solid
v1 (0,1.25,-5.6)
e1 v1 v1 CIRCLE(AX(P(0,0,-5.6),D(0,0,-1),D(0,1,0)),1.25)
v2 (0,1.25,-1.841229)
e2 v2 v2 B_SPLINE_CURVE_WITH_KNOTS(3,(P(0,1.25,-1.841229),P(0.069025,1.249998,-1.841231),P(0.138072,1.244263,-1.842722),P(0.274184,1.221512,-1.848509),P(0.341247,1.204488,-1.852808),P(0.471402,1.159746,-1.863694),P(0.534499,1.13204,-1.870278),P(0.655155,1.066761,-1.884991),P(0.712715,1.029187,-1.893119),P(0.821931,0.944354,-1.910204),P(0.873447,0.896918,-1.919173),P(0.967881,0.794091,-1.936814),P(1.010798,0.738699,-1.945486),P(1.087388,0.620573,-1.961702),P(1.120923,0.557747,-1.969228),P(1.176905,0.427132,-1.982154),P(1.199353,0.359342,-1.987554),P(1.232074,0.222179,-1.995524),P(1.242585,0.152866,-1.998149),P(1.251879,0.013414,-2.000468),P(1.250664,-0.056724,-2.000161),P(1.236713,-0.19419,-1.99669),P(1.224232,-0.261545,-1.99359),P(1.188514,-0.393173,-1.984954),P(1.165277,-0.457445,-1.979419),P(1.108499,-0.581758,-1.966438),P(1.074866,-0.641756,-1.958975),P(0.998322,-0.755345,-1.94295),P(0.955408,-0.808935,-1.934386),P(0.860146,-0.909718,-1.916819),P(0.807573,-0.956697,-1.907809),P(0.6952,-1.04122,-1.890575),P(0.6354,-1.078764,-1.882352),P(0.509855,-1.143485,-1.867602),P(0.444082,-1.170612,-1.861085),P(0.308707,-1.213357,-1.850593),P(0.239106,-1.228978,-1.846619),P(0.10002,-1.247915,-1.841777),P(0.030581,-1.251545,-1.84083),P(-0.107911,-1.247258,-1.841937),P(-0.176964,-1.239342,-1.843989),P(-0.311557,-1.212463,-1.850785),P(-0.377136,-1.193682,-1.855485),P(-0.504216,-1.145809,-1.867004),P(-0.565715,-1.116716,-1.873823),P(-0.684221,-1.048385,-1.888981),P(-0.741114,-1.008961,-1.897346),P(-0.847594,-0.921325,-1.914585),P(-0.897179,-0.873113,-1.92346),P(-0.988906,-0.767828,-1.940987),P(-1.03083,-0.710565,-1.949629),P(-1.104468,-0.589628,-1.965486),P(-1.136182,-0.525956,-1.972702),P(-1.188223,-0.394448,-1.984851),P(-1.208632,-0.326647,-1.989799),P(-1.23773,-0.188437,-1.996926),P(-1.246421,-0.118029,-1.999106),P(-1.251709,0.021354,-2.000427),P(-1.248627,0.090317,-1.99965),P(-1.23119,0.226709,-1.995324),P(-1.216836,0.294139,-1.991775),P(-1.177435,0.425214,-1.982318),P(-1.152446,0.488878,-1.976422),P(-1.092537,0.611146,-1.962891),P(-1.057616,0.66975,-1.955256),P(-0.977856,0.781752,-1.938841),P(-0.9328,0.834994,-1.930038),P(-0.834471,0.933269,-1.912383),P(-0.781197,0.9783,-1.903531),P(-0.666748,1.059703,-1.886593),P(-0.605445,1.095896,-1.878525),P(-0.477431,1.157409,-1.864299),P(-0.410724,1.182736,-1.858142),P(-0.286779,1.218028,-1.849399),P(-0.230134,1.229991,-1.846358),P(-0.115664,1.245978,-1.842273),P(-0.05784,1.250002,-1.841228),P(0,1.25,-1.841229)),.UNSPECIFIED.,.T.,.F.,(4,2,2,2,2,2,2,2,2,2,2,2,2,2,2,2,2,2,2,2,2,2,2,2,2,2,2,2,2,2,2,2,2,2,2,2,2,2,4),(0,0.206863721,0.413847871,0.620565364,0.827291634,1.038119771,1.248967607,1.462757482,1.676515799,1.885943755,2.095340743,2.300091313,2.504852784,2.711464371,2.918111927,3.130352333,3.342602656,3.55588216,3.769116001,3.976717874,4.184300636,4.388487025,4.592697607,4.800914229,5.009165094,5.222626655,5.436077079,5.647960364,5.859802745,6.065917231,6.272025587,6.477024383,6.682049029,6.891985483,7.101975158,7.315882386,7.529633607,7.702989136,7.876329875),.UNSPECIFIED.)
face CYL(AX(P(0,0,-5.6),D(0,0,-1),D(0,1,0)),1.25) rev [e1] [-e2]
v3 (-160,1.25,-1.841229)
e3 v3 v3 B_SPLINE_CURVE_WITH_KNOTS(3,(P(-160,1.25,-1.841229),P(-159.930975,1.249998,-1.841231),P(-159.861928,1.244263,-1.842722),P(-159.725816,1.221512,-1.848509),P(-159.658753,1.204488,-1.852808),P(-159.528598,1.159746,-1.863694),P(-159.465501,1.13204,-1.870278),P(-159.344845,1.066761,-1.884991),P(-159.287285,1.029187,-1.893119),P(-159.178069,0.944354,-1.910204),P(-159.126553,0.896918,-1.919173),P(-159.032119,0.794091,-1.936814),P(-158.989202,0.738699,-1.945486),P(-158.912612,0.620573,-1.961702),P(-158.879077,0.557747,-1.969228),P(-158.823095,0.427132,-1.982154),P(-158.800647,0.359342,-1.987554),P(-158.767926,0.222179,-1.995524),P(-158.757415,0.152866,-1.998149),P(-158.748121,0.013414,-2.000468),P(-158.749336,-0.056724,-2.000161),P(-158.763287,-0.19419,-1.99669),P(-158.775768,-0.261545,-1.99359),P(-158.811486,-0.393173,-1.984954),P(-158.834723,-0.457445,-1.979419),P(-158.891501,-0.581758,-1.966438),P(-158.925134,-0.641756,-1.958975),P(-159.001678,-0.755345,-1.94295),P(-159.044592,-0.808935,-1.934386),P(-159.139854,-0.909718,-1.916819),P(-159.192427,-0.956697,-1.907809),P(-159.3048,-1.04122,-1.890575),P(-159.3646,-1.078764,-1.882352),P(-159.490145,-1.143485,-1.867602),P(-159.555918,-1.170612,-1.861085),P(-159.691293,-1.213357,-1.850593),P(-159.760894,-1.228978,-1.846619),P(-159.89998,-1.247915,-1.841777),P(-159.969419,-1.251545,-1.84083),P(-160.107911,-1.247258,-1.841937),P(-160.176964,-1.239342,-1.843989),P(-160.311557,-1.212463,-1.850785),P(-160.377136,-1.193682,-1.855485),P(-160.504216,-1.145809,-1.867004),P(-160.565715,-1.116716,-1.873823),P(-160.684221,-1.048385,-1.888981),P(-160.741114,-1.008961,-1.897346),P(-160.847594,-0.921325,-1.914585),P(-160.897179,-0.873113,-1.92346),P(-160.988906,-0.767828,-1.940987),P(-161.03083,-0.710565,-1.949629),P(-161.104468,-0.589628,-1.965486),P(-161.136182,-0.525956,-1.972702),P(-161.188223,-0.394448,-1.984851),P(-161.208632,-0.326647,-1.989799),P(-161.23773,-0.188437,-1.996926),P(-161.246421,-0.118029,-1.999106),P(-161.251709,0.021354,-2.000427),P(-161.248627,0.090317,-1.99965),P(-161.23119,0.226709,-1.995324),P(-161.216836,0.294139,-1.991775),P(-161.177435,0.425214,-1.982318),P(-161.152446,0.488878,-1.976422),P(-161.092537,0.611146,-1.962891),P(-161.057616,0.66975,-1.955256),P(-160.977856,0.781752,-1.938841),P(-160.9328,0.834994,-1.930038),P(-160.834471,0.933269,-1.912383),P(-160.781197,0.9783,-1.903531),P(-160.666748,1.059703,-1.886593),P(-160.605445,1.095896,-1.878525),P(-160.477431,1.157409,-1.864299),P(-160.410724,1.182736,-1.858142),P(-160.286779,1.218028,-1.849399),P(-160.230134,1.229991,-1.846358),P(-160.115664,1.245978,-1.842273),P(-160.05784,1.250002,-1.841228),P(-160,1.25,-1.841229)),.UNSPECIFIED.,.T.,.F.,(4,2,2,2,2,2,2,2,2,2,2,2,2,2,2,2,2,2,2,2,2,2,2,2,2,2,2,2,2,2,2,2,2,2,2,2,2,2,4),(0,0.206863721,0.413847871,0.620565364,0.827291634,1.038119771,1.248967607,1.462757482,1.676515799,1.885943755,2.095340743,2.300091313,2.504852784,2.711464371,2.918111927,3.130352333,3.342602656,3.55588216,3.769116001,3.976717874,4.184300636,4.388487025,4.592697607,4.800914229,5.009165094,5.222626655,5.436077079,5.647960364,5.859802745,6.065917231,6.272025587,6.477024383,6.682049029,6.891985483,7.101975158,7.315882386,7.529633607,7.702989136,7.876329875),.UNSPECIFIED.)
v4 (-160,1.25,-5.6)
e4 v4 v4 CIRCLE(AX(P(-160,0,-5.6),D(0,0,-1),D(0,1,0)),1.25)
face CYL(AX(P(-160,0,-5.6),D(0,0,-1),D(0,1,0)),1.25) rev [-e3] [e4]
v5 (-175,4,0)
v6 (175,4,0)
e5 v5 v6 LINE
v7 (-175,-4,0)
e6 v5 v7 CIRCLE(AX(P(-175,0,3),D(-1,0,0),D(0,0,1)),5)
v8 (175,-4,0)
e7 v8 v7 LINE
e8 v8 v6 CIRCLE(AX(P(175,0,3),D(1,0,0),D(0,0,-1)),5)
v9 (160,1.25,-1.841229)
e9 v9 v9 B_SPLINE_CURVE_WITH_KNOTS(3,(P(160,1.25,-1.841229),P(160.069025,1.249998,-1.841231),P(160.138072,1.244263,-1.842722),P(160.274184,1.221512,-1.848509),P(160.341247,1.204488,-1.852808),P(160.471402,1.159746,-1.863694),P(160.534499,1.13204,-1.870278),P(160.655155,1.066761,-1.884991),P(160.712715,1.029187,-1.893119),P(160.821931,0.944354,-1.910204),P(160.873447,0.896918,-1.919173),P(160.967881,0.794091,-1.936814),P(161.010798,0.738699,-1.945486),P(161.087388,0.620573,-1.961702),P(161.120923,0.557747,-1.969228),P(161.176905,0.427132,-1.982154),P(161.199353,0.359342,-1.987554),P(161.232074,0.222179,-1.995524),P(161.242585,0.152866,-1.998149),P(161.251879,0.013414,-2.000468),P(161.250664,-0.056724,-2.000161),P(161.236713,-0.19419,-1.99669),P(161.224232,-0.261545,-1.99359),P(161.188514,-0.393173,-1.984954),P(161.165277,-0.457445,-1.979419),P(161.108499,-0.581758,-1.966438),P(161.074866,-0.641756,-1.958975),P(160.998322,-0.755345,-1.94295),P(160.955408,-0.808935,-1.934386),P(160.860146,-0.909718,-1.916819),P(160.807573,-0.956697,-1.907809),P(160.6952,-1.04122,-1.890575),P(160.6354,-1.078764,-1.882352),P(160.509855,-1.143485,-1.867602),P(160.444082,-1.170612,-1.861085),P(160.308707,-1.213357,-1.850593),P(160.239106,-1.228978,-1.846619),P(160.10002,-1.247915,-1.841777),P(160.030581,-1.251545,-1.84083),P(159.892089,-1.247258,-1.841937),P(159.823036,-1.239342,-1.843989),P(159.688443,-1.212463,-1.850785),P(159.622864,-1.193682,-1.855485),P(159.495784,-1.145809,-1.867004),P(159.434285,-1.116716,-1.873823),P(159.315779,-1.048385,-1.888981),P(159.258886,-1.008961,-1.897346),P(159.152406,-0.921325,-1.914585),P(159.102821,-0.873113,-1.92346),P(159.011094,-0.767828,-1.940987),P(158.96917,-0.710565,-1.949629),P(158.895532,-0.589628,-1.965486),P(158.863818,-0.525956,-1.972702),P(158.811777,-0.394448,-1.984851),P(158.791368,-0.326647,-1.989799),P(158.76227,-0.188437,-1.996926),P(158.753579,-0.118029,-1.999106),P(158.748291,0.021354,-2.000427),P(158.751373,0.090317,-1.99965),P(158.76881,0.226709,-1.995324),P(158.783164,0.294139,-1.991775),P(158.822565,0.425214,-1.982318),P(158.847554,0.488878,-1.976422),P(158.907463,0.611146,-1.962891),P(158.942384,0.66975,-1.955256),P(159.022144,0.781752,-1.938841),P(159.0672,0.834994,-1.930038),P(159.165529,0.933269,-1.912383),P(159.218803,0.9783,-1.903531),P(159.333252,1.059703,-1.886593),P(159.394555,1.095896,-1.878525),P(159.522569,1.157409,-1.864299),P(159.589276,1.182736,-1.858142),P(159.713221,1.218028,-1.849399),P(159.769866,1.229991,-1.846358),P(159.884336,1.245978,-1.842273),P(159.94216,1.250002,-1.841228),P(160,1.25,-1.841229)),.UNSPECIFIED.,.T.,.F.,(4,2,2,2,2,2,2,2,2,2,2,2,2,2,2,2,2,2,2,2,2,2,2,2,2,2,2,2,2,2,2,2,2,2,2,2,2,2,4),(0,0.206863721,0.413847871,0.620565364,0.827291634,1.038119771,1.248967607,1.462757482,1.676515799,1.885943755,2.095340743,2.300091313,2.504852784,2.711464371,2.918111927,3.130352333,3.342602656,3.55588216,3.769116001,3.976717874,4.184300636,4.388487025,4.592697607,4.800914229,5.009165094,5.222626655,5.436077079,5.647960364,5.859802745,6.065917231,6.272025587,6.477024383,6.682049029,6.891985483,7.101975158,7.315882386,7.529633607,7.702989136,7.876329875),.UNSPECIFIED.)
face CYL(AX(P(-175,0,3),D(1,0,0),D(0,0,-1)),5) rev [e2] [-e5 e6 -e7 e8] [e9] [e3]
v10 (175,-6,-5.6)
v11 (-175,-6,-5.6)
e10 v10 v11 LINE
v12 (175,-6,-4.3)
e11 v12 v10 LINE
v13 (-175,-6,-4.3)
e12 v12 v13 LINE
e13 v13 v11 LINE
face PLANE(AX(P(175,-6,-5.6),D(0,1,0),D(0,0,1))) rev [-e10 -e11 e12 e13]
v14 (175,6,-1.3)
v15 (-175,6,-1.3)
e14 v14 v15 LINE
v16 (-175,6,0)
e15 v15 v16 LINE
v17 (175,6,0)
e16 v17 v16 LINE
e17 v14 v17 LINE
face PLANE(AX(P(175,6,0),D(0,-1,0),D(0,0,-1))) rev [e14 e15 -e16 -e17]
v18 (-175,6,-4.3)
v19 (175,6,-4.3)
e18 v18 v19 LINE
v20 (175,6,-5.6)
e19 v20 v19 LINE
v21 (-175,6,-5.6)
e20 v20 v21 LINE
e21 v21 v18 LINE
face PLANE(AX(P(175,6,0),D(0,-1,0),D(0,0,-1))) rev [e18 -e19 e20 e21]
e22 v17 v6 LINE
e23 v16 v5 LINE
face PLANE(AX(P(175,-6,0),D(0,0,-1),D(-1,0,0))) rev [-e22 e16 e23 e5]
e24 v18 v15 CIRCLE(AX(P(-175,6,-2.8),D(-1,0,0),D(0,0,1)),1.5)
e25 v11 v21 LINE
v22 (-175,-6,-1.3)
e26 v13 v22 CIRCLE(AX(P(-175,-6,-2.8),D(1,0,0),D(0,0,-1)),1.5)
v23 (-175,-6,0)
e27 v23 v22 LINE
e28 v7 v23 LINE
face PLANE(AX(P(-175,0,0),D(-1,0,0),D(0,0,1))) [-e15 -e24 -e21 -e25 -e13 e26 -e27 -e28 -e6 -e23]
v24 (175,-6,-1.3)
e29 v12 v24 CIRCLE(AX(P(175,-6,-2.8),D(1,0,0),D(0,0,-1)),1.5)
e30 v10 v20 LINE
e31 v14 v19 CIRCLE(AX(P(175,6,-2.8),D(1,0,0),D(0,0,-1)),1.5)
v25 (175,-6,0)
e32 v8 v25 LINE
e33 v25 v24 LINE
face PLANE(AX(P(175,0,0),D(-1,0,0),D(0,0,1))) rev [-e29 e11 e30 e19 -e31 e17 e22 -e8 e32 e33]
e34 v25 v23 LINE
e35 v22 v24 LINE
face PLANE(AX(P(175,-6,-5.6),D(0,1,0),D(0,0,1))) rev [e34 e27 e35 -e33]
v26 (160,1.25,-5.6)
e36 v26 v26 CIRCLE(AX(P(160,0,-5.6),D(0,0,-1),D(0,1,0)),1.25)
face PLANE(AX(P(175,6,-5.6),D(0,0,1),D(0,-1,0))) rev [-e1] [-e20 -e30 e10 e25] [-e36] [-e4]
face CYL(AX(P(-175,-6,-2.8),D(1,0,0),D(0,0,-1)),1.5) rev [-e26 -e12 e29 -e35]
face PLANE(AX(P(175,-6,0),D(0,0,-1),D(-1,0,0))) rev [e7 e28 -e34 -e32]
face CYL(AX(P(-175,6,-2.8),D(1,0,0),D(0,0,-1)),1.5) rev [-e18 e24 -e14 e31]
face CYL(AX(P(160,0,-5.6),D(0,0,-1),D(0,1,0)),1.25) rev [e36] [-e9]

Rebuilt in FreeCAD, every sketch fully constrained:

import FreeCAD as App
import Part
import Sketcher
from FreeCAD import Vector

doc = App.newDocument("Part")
params = doc.addObject("Spreadsheet::Sheet", "Params")
for row, (alias, value) in enumerate([
    ("sketch1_width", "12 mm"),
    ("sketch1_height", "5.6 mm"),
    ("pad1_length", "350 mm"),
    ("sketch2_diameter", "3 mm"),
    ("pocket1_length", "350 mm"),
    ("sketch3_diameter", "10 mm"),
    ("pocket2_length", "350 mm"),
    ("sketch4_diameter", "2.5 mm"),
    ("hole_diameter", "2.5 mm"),
    ("linearpattern_pitch", "160 mm"),
], start=1):
    params.set(f"A{row}", alias)
    params.set(f"B{row}", "=" + value)
    params.setAlias(f"B{row}", alias)

body = doc.addObject("PartDesign::Body", "Body")

sketch1 = body.newObject("Sketcher::SketchObject", "Sketch")
sketch1.AttachmentSupport = (doc.getObject("YZ_Plane"), [""])
sketch1.MapMode = "FlatFace"
sketch1.addGeometry([
    Part.LineSegment(Vector(6, 0, 0), Vector(-6, 0, 0)),
    Part.LineSegment(Vector(-6, 0, 0), Vector(-6, -5.6, 0)),
    Part.LineSegment(Vector(-6, -5.6, 0), Vector(6, -5.6, 0)),
    Part.LineSegment(Vector(6, -5.6, 0), Vector(6, 0, 0)),
], False)
sketch1.addConstraint([
    Sketcher.Constraint("Coincident", 0, 2, 1, 1),
    Sketcher.Constraint("Coincident", 1, 2, 2, 1),
    Sketcher.Constraint("Coincident", 2, 2, 3, 1),
    Sketcher.Constraint("Coincident", 3, 2, 0, 1),
    Sketcher.Constraint("Horizontal", 0),
    Sketcher.Constraint("Vertical", 1),
    Sketcher.Constraint("Horizontal", 2),
    Sketcher.Constraint("Vertical", 3),
    Sketcher.Constraint("Symmetric", 0, 2, 3, 2, -1, 1),
    Sketcher.Constraint("DistanceX", 0, 2, 0, 1, 12.0),
    Sketcher.Constraint("DistanceY", 1, 2, 1, 1, 5.6),
])
sketch1.setExpression("Constraints[9]", "Params.sketch1_width")
sketch1.setExpression("Constraints[10]", "Params.sketch1_height")
pad1 = body.newObject("PartDesign::Pad", "Pad")
pad1.Profile = sketch1
pad1.setExpression("Length", "Params.pad1_length")
pad1.Midplane = True

sketch2 = body.newObject("Sketcher::SketchObject", "Sketch001")
sketch2.AttachmentSupport = (doc.getObject("YZ_Plane"), [""])
sketch2.MapMode = "FlatFace"
sketch2.AttachmentOffset = App.Placement(Vector(0, 0, 175), App.Rotation())
sketch2.addGeometry([
    Part.Circle(Vector(6, -2.8, 0), Vector(0, 0, 1), 1.5),
    Part.Circle(Vector(-6, -2.8, 0), Vector(0, 0, 1), 1.5),
], False)
sketch2.addConstraint([
    Sketcher.Constraint("Equal", 0, 1),
    Sketcher.Constraint("Symmetric", 0, 3, 1, 3, -2),
    Sketcher.Constraint("Diameter", 0, 3.0),
    Sketcher.Constraint("DistanceX", -1, 1, 0, 3, 6.0),
    Sketcher.Constraint("DistanceY", 0, 3, -1, 1, 2.8),
])
sketch2.setExpression("Constraints[2]", "Params.sketch2_diameter")
pocket1 = body.newObject("PartDesign::Pocket", "Pocket")
pocket1.Profile = sketch2
pocket1.setExpression("Length", "Params.pocket1_length")

sketch3 = body.newObject("Sketcher::SketchObject", "Sketch002")
sketch3.AttachmentSupport = (doc.getObject("YZ_Plane"), [""])
sketch3.MapMode = "FlatFace"
sketch3.AttachmentOffset = App.Placement(Vector(0, 0, 175), App.Rotation())
sketch3.addGeometry(Part.Circle(Vector(0, 3, 0), Vector(0, 0, 1), 5), False)
sketch3.addConstraint([
    Sketcher.Constraint("PointOnObject", 0, 3, -2),
    Sketcher.Constraint("Diameter", 0, 10.0),
    Sketcher.Constraint("DistanceY", -1, 1, 0, 3, 3.0),
])
sketch3.setExpression("Constraints[1]", "Params.sketch3_diameter")
pocket2 = body.newObject("PartDesign::Pocket", "Pocket001")
pocket2.Profile = sketch3
pocket2.setExpression("Length", "Params.pocket2_length")

sketch4 = body.newObject("Sketcher::SketchObject", "Sketch003")
sketch4.AttachmentSupport = (doc.getObject("XY_Plane"), [""])
sketch4.MapMode = "FlatFace"
sketch4.AttachmentOffset = App.Placement(Vector(0, 0, -5.6), App.Rotation())
sketch4.addGeometry(Part.Circle(Vector(160, 0, 0), Vector(0, 0, 1), 1.25), False)
sketch4.addConstraint([
    Sketcher.Constraint("PointOnObject", 0, 3, -1),
    Sketcher.Constraint("Diameter", 0, 2.5),
    Sketcher.Constraint("DistanceX", -1, 1, 0, 3, 160.0),
])
sketch4.setExpression("Constraints[1]", "Params.sketch4_diameter")
doc.recompute()
hole = body.newObject("PartDesign::Hole", "Hole")
hole.Profile = sketch4
hole.ThreadType = "None"
hole.setExpression("Diameter", "Params.hole_diameter")
hole.DepthType = "ThroughAll"
hole.Reversed = True
doc.recompute()

linearpattern = body.newObject("PartDesign::LinearPattern", "LinearPattern")
linearpattern.Originals = [hole]
linearpattern.Direction = (doc.getObject("X_Axis"), [""])
linearpattern.Mode = "offset"
linearpattern.setExpression("Offset", "Params.linearpattern_pitch")
linearpattern.Occurrences = 3
linearpattern.Reversed = True
body.Tip = linearpattern

doc.recompute()
